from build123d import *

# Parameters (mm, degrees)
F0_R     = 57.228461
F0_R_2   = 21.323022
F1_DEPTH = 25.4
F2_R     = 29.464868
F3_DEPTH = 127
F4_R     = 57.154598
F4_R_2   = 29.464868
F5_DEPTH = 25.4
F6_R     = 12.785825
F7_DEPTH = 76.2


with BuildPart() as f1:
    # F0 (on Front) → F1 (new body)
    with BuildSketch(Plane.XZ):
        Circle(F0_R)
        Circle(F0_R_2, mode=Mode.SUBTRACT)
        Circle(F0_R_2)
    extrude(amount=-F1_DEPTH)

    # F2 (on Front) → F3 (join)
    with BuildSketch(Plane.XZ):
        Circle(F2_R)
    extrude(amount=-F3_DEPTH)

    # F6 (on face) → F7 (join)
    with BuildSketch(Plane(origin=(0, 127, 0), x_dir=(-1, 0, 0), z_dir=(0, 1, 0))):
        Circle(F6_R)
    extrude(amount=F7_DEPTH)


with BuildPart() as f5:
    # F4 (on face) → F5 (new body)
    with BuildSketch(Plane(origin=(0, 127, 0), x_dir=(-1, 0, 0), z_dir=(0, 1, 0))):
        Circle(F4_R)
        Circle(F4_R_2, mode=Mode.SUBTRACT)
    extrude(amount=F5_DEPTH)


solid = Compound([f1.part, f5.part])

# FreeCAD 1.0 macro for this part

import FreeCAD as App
import Part
import Sketcher
Q = App.Units.Quantity

doc = App.newDocument("Part")
body = doc.addObject("PartDesign::Body", "Body")

# Sketch on XZ plane
sketch1 = doc.addObject("Sketcher::SketchObject", "Sketch")
body.addObject(sketch1)
sketch1.AttachmentSupport = (doc.XZ_Plane, [""])
sketch1.MapMode = "FlatFace"
sketch1.addGeometry(Part.Circle(App.Vector(0, 0, 0), App.Vector(0, 0, 1), 57.228461), False)
sketch1.addConstraint(Sketcher.Constraint("Coincident", 0, 3, -1, 1))
sketch1.addConstraint(Sketcher.Constraint("Diameter", 0, Q("114.456922 mm")))
pad1 = doc.addObject("PartDesign::Pad", "Pad")
body.addObject(pad1)
pad1.Profile = sketch1
pad1.Length = Q("1 in")
pad1.Reversed = True

# Sketch on XZ plane
sketch2 = doc.addObject("Sketcher::SketchObject", "Sketch001")
body.addObject(sketch2)
sketch2.AttachmentSupport = (doc.XZ_Plane, [""])
sketch2.MapMode = "FlatFace"
sketch2.addGeometry(Part.Circle(App.Vector(0, 0, 0), App.Vector(0, 0, 1), 29.464868), False)
sketch2.addConstraint(Sketcher.Constraint("Coincident", 0, 3, -1, 1))
sketch2.addConstraint(Sketcher.Constraint("Diameter", 0, Q("58.929736 mm")))
pad2 = doc.addObject("PartDesign::Pad", "Pad001")
body.addObject(pad2)
pad2.Profile = sketch2
pad2.Length = Q("5 in")
pad2.Reversed = True

# Sketch on XZ plane
sketch3 = doc.addObject("Sketcher::SketchObject", "Sketch002")
body.addObject(sketch3)
sketch3.AttachmentSupport = (doc.XZ_Plane, [""])
sketch3.MapMode = "FlatFace"
sketch3.AttachmentOffset = App.Placement(App.Vector(0, 0, -5 * 25.4), App.Rotation())
sketch3.addGeometry(Part.Circle(App.Vector(0, 0, 0), App.Vector(0, 0, 1), 12.785825), False)
sketch3.addConstraint(Sketcher.Constraint("Coincident", 0, 3, -1, 1))
sketch3.addConstraint(Sketcher.Constraint("Diameter", 0, Q("25.57165 mm")))
pad3 = doc.addObject("PartDesign::Pad", "Pad002")
body.addObject(pad3)
pad3.Profile = sketch3
pad3.Length = Q("3 in")
pad3.Reversed = True
body2 = doc.addObject("PartDesign::Body", "Body001")

# Sketch on XZ plane
sketch4 = doc.addObject("Sketcher::SketchObject", "Sketch003")
body2.addObject(sketch4)
sketch4.AttachmentSupport = (doc.getObject("XZ_Plane001"), [""])
sketch4.MapMode = "FlatFace"
sketch4.AttachmentOffset = App.Placement(App.Vector(0, 0, -5 * 25.4), App.Rotation())
sketch4.addGeometry(Part.Circle(App.Vector(0, 0, 0), App.Vector(0, 0, 1), 57.154598), False)
sketch4.addGeometry(Part.Circle(App.Vector(0, 0, 0), App.Vector(0, 0, 1), 29.464868), False)
sketch4.addConstraint(Sketcher.Constraint("Coincident", 0, 3, -1, 1))
sketch4.addConstraint(Sketcher.Constraint("Coincident", 1, 3, -1, 1))
sketch4.addConstraint(Sketcher.Constraint("Diameter", 0, Q("114.309196 mm")))
sketch4.addConstraint(Sketcher.Constraint("Diameter", 1, Q("58.929736 mm")))
pad4 = doc.addObject("PartDesign::Pad", "Pad003")
body2.addObject(pad4)
pad4.Profile = sketch4
pad4.Length = Q("1 in")
pad4.Reversed = True

doc.recompute()
